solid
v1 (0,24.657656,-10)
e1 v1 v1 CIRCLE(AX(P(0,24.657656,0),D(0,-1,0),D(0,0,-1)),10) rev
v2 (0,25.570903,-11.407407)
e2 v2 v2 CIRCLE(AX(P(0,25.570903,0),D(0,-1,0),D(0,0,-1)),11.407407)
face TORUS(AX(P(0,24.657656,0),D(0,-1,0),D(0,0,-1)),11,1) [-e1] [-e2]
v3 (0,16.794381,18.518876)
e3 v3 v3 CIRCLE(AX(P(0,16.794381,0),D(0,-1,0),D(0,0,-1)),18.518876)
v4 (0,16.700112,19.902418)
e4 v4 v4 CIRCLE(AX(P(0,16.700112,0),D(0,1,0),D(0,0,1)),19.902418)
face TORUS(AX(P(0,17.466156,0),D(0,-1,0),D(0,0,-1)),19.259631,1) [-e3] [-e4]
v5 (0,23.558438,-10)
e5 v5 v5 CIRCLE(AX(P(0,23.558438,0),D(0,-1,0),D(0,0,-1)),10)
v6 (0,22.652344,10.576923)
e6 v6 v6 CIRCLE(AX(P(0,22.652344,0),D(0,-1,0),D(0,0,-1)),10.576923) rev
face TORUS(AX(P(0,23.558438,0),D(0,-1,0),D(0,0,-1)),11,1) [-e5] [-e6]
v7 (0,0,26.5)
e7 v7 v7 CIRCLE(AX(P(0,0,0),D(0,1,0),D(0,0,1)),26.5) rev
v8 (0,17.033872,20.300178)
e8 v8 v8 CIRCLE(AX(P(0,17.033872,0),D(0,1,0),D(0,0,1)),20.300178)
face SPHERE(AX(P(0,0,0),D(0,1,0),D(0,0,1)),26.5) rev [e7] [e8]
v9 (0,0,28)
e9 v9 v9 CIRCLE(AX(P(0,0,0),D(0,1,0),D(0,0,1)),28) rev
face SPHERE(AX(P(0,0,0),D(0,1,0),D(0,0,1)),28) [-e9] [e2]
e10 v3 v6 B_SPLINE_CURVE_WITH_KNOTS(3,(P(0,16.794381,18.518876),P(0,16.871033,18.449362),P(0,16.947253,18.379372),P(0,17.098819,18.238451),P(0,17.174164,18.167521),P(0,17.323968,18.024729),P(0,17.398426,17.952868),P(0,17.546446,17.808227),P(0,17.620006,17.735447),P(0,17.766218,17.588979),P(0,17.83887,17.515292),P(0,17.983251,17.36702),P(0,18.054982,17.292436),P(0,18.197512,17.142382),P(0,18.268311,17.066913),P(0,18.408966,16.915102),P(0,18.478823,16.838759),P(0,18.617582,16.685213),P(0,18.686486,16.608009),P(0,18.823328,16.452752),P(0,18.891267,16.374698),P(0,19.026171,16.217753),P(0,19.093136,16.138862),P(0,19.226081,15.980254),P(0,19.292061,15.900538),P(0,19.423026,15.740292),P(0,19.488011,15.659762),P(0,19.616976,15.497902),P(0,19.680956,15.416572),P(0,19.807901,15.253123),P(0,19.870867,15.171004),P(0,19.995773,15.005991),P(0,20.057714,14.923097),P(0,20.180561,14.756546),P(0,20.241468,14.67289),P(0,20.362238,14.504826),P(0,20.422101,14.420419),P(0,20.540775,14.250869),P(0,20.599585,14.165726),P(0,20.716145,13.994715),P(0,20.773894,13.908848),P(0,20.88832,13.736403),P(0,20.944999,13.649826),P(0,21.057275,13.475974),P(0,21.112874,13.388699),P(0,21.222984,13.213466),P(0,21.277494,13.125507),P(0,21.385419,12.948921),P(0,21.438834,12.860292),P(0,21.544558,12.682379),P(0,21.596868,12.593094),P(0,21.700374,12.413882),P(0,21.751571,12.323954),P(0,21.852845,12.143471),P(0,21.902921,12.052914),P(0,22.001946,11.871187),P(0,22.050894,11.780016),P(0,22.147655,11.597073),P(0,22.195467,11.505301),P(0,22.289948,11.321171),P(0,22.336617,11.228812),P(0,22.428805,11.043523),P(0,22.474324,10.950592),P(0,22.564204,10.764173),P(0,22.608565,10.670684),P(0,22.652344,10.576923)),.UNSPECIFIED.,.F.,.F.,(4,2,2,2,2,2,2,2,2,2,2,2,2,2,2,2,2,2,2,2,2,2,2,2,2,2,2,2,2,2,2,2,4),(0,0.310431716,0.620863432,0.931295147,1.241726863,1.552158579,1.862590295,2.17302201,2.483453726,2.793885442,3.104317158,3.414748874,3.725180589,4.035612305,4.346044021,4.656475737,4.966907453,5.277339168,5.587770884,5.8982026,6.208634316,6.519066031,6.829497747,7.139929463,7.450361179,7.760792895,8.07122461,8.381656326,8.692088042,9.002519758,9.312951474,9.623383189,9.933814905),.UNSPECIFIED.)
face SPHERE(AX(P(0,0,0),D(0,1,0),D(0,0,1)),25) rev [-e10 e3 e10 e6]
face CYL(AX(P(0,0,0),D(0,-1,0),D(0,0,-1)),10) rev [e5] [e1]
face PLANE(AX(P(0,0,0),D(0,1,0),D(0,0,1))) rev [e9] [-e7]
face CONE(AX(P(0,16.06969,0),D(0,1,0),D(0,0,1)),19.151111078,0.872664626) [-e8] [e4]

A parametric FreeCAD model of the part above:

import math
import FreeCAD as App
import Part
import Sketcher

V = App.Vector
Q = App.Units.Quantity


def edges_at(feature, points):
    """Names of the edges that pass closest to the given points."""
    edges = feature.Shape.Edges
    near = lambda p: min(range(len(edges)), key=lambda i: edges[i].distToShape(Part.Vertex(*p))[0])
    return sorted({f"Edge{near(p) + 1}" for p in points})

doc = App.newDocument("Part")
body = doc.addObject("PartDesign::Body", "Body")

# Sketch on YZ plane
sketch1 = doc.addObject("Sketcher::SketchObject", "Sketch")
body.addObject(sketch1)
sketch1.AttachmentSupport = (doc.YZ_Plane, [""])
sketch1.MapMode = "FlatFace"
sketch1.addGeometry([
    Part.LineSegment(V(25, 0.5, 0), V(28, 0.5, 0)),  # 0
    Part.ArcOfCircle(Part.Circle(V(0, 0, 0), V(0, 0, 1), 28), math.radians(1), math.radians(180)),  # 1
    Part.LineSegment(V(-28, 0, 0), V(-26.5, 0, 0)),  # 2
    Part.ArcOfCircle(Part.Circle(V(0, 0, 0), V(0, 0, 1), 26.5), math.radians(50), math.radians(180)),  # 3
    Part.LineSegment(V(17, 20.3, 0), V(16.1, 19.2, 0)),  # 4
    Part.ArcOfCircle(Part.Circle(V(0, 0, 0), V(0, 0, 1), 25), math.radians(1), math.radians(50)),  # 5
], False)
sketch1.addConstraint([
    Sketcher.Constraint("Coincident", 0, 2, 1, 1),
    Sketcher.Constraint("Coincident", 1, 2, 2, 1),
    Sketcher.Constraint("Coincident", 2, 2, 3, 2),
    Sketcher.Constraint("Coincident", 3, 1, 4, 1),
    Sketcher.Constraint("Coincident", 4, 2, 5, 2),
    Sketcher.Constraint("Coincident", 5, 1, 0, 1),
    Sketcher.Constraint("Horizontal", 0),
    Sketcher.Constraint("Horizontal", 2),
    Sketcher.Constraint("Coincident", 1, 3, -1, 1),
    Sketcher.Constraint("Coincident", 3, 3, -1, 1),
    Sketcher.Constraint("Coincident", 5, 3, -1, 1),
    Sketcher.Constraint("PointOnObject", 1, 2, -1),
    Sketcher.Constraint("Radius", 1, 28.0),
    Sketcher.Constraint("Radius", 5, 25.0),
    Sketcher.Constraint("Radius", 3, 26.5),
    Sketcher.Constraint("Angle", 4, Q("-130 deg")),
    Sketcher.Constraint("DistanceY", -1, 1, 0, 2, 0.5),
    Sketcher.Constraint("DistanceX", -1, 1, 3, 1, 17.033872),
])
revolution = doc.addObject("PartDesign::Revolution", "Revolution")
body.addObject(revolution)
revolution.Profile = sketch1
revolution.ReferenceAxis = (sketch1, ["H_Axis"])
revolution.Angle = 360

# Sketch on YZ plane
sketch2 = doc.addObject("Sketcher::SketchObject", "Sketch001")
body.addObject(sketch2)
sketch2.AttachmentSupport = (doc.YZ_Plane, [""])
sketch2.MapMode = "FlatFace"
sketch2.addGeometry([
    Part.LineSegment(V(30, 10, 0), V(16, 10, 0)),
    Part.LineSegment(V(16, 10, 0), V(16, 0, 0)),
    Part.LineSegment(V(16, 0, 0), V(30, 0, 0)),
    Part.LineSegment(V(30, 0, 0), V(30, 10, 0)),
], False)
sketch2.addConstraint([
    Sketcher.Constraint("Coincident", 0, 2, 1, 1),
    Sketcher.Constraint("Coincident", 1, 2, 2, 1),
    Sketcher.Constraint("Coincident", 2, 2, 3, 1),
    Sketcher.Constraint("Coincident", 3, 2, 0, 1),
    Sketcher.Constraint("Horizontal", 0),
    Sketcher.Constraint("Vertical", 1),
    Sketcher.Constraint("Horizontal", 2),
    Sketcher.Constraint("Vertical", 3),
    Sketcher.Constraint("PointOnObject", 1, 2, -1),
    Sketcher.Constraint("DistanceX", 0, 2, 0, 1, 14.0),
    Sketcher.Constraint("DistanceY", 1, 2, 1, 1, 10.0),
    Sketcher.Constraint("DistanceX", -1, 1, 0, 2, 16.0),
])
groove = doc.addObject("PartDesign::Groove", "Groove")
body.addObject(groove)
groove.Profile = sketch2
groove.ReferenceAxis = (sketch2, ["H_Axis"])
groove.Angle = 360
doc.recompute()

fillet = doc.addObject("PartDesign::Fillet", "Fillet")
body.addObject(fillet)
fillet.Base = (groove, edges_at(groove, [(0, 22.913, -10), (0, 26.153, -10), (0, 16.07, -19.151)]))
fillet.Radius = 1

# Sketch on XZ plane
sketch3 = doc.addObject("Sketcher::SketchObject", "Sketch002")
body.addObject(sketch3)
sketch3.AttachmentSupport = (doc.XZ_Plane, [""])
sketch3.MapMode = "FlatFace"
sketch3.addGeometry(Part.Circle(V(0, 0, 0), V(0, 0, 1), 30), False)
sketch3.addConstraint([
    Sketcher.Constraint("Coincident", 0, 3, -1, 1),
    Sketcher.Constraint("Diameter", 0, 59.6913),
])
pocket1 = doc.addObject("PartDesign::Pocket", "Pocket")
body.addObject(pocket1)
pocket1.Profile = sketch3
pocket1.Length = 30
pocket1.Reversed = True

doc.recompute()
